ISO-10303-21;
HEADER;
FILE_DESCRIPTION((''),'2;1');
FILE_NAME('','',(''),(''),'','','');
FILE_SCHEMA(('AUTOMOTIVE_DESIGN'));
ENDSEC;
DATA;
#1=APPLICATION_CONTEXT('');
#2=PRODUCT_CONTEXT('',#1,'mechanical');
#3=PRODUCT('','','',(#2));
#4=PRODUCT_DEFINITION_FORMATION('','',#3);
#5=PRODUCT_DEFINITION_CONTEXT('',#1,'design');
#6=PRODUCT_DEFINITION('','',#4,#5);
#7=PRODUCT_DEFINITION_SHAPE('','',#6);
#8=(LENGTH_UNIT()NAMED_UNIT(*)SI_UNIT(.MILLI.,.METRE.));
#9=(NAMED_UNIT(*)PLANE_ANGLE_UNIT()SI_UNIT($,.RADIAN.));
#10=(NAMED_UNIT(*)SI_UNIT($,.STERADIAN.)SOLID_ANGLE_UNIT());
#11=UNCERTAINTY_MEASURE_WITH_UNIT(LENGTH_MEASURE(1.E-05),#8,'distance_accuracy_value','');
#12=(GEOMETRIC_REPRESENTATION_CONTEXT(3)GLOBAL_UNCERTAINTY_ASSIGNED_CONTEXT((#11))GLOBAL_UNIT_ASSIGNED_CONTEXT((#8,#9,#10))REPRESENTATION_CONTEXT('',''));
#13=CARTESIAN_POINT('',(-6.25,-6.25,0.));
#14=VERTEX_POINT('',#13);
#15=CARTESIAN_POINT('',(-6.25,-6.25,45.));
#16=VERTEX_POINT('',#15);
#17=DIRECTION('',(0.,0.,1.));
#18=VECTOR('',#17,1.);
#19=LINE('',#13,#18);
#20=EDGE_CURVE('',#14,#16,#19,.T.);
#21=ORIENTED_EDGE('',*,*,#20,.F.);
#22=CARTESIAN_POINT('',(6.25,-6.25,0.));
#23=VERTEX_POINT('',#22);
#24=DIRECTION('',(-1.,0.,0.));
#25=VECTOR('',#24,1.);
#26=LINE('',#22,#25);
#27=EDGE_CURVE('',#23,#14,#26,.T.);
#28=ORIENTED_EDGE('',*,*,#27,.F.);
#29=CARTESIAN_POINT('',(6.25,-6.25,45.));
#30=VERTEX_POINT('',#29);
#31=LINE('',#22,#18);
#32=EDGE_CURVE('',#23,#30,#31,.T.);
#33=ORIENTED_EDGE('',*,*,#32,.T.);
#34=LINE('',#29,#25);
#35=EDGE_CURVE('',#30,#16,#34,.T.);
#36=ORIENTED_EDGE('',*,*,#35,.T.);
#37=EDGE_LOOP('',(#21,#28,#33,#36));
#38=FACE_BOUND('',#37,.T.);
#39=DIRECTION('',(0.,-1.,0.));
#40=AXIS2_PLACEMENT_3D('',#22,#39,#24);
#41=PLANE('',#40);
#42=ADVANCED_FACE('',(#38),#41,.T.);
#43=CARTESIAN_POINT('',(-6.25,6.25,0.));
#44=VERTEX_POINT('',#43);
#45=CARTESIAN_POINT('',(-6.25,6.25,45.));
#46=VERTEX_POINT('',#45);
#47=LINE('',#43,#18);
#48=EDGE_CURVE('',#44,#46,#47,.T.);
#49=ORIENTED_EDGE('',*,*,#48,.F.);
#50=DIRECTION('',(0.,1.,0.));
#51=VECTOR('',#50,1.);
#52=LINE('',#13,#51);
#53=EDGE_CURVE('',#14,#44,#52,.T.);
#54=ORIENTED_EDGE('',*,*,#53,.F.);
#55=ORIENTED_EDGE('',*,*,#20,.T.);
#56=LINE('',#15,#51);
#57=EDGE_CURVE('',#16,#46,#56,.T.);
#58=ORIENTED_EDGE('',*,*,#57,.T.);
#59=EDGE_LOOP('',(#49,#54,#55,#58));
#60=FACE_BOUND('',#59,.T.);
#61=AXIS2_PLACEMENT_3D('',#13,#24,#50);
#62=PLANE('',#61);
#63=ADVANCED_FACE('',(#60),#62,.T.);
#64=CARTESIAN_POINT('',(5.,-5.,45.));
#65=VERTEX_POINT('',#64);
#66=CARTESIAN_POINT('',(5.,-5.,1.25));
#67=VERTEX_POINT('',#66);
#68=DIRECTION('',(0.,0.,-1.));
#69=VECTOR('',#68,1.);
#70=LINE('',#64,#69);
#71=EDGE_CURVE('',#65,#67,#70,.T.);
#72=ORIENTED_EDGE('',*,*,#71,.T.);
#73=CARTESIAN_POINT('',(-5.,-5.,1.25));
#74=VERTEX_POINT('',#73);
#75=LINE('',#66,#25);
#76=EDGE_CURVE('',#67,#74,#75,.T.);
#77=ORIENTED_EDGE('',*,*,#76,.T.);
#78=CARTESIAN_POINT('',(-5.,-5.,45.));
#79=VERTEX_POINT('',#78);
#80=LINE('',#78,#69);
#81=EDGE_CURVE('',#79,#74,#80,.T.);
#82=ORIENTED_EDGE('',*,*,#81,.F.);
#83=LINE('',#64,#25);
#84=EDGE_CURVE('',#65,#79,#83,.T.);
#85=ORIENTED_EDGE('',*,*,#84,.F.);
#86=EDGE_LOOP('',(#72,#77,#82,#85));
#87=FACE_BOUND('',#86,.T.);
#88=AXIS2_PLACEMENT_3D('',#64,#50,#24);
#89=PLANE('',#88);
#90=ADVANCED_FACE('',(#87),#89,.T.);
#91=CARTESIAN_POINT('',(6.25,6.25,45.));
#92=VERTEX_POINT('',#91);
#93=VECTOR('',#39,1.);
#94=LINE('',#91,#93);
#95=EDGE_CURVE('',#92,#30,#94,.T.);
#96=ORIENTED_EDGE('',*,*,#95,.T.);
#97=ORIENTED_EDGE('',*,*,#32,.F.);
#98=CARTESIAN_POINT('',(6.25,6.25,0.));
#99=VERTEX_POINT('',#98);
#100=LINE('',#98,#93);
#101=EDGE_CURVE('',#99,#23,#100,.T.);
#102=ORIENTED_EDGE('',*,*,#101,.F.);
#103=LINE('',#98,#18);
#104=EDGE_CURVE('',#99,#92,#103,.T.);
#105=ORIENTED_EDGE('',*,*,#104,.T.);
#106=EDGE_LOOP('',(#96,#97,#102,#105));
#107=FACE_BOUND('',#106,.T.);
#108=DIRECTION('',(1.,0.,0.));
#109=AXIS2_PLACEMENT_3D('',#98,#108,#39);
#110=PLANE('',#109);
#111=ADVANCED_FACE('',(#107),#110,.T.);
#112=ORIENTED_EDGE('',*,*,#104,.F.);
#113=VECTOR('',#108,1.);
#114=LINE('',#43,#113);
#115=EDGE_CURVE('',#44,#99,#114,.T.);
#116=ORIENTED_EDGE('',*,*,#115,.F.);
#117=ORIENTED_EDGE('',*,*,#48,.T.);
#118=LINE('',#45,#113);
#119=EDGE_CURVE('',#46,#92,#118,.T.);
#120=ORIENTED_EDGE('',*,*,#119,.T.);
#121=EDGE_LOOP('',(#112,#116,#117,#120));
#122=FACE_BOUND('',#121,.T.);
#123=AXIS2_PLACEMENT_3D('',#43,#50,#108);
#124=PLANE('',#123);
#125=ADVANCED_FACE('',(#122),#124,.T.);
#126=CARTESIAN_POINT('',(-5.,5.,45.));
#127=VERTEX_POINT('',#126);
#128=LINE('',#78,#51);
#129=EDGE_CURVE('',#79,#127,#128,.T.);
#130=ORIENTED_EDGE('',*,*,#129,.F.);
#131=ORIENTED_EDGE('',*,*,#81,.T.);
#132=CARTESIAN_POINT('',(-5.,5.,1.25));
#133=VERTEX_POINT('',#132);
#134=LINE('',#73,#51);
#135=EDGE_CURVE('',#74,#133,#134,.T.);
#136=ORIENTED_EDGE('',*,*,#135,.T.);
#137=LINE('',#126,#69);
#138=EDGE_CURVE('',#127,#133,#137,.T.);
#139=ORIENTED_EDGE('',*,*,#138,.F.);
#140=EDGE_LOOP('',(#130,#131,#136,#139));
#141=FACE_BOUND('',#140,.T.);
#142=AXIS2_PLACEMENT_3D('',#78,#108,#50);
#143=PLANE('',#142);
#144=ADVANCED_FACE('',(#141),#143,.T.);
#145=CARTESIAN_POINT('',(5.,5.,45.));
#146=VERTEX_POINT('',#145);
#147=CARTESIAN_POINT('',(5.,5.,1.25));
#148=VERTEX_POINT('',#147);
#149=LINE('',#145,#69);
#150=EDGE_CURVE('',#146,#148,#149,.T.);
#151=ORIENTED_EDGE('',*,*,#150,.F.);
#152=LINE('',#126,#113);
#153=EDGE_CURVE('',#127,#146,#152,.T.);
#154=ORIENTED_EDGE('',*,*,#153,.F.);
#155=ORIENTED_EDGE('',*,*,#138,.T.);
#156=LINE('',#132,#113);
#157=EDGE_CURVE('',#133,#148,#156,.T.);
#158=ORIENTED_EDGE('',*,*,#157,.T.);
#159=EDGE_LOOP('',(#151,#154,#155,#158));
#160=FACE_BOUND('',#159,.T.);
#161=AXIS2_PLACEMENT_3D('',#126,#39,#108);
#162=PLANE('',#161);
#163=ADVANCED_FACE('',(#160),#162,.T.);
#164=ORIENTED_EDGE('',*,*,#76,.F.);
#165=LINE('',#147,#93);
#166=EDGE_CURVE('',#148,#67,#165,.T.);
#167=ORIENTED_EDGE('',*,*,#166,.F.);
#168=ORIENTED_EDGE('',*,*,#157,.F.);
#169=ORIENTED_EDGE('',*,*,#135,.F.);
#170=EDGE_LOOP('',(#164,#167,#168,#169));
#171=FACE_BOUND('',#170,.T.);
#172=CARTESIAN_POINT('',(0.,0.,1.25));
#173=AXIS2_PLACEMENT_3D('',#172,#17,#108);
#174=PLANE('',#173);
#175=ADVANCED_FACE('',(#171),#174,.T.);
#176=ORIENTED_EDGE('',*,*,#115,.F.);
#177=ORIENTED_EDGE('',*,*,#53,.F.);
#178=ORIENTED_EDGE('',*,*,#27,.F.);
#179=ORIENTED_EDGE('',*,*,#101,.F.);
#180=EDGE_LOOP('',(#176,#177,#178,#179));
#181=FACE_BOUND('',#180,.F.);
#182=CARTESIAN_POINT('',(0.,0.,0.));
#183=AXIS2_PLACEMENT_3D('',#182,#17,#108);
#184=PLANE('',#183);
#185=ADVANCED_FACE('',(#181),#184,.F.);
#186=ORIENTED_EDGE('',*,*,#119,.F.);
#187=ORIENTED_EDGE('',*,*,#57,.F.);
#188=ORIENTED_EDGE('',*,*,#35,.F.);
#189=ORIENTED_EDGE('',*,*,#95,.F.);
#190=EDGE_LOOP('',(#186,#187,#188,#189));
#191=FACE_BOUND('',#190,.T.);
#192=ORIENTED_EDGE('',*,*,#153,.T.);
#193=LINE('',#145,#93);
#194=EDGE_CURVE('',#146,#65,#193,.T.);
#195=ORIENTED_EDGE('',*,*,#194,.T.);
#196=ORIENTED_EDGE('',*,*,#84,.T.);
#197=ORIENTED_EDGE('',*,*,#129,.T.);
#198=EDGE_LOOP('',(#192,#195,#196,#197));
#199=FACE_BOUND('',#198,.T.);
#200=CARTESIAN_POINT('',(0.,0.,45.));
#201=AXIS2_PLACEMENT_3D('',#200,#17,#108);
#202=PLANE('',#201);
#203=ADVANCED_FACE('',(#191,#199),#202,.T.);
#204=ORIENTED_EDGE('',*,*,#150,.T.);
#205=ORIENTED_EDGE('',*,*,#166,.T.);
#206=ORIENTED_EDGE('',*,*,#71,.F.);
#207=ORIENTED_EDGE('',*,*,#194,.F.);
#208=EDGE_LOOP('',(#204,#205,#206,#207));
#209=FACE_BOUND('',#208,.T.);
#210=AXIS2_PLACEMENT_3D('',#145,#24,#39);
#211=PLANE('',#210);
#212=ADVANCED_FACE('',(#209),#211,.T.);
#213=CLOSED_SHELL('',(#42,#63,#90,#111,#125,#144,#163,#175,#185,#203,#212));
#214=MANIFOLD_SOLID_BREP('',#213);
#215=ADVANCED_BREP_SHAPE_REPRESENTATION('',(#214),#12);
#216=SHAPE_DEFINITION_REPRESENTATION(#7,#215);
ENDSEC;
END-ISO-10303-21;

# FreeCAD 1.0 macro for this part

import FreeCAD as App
import Part
import Sketcher

V = App.Vector
Q = App.Units.Quantity

doc = App.newDocument("Part")
params = doc.addObject("Spreadsheet::Sheet", "Params")
for row, (alias, value) in enumerate([
    ("sketch1_width", "12.5 mm"),
    ("pad1_length", "45 mm"),
    ("sketch2_width", "10 mm"),
    ("pocket1_length", "43.75 mm"),
], start=1):
    params.set(f"A{row}", alias)
    params.set(f"B{row}", "=" + value)
    params.setAlias(f"B{row}", alias)

body = doc.addObject("PartDesign::Body", "Body")

# Sketch on XY plane
sketch1 = body.newObject("Sketcher::SketchObject", "Sketch")
sketch1.AttachmentSupport = (doc.getObject("XY_Plane"), [""])
sketch1.MapMode = "FlatFace"
sketch1.addGeometry([
    Part.LineSegment(V(6, 6, 0), V(-6, 6, 0)),
    Part.LineSegment(V(-6, 6, 0), V(-6, -6, 0)),
    Part.LineSegment(V(-6, -6, 0), V(6, -6, 0)),
    Part.LineSegment(V(6, -6, 0), V(6, 6, 0)),
], False)
sketch1.addConstraint([
    Sketcher.Constraint("Coincident", 0, 2, 1, 1),
    Sketcher.Constraint("Coincident", 1, 2, 2, 1),
    Sketcher.Constraint("Coincident", 2, 2, 3, 1),
    Sketcher.Constraint("Coincident", 3, 2, 0, 1),
    Sketcher.Constraint("Horizontal", 0),
    Sketcher.Constraint("Vertical", 1),
    Sketcher.Constraint("Horizontal", 2),
    Sketcher.Constraint("Vertical", 3),
    Sketcher.Constraint("Symmetric", 0, 2, 2, 2, -1, 1),
    Sketcher.Constraint("Equal", 2, 1),
    Sketcher.Constraint("DistanceX", 0, 2, 0, 1, Q("12.5 mm")),
])
sketch1.setExpression("Constraints[10]", "Params.sketch1_width")
pad1 = body.newObject("PartDesign::Pad", "Pad")
pad1.Profile = sketch1
pad1.setExpression("Length", "Params.pad1_length")

# Sketch on XY plane
sketch2 = body.newObject("Sketcher::SketchObject", "Sketch001")
sketch2.AttachmentSupport = (doc.getObject("XY_Plane"), [""])
sketch2.MapMode = "FlatFace"
sketch2.AttachmentOffset = App.Placement(V(0, 0, 45), App.Rotation())
sketch2.addGeometry([
    Part.LineSegment(V(5, 5, 0), V(-5, 5, 0)),
    Part.LineSegment(V(-5, 5, 0), V(-5, -5, 0)),
    Part.LineSegment(V(-5, -5, 0), V(5, -5, 0)),
    Part.LineSegment(V(5, -5, 0), V(5, 5, 0)),
], False)
sketch2.addConstraint([
    Sketcher.Constraint("Coincident", 0, 2, 1, 1),
    Sketcher.Constraint("Coincident", 1, 2, 2, 1),
    Sketcher.Constraint("Coincident", 2, 2, 3, 1),
    Sketcher.Constraint("Coincident", 3, 2, 0, 1),
    Sketcher.Constraint("Horizontal", 0),
    Sketcher.Constraint("Vertical", 1),
    Sketcher.Constraint("Horizontal", 2),
    Sketcher.Constraint("Vertical", 3),
    Sketcher.Constraint("Symmetric", 0, 2, 2, 2, -1, 1),
    Sketcher.Constraint("Equal", 2, 1),
    Sketcher.Constraint("DistanceX", 0, 2, 0, 1, Q("10 mm")),
])
sketch2.setExpression("Constraints[10]", "Params.sketch2_width")
pocket1 = body.newObject("PartDesign::Pocket", "Pocket")
pocket1.Profile = sketch2
pocket1.setExpression("Length", "Params.pocket1_length")

doc.recompute()
